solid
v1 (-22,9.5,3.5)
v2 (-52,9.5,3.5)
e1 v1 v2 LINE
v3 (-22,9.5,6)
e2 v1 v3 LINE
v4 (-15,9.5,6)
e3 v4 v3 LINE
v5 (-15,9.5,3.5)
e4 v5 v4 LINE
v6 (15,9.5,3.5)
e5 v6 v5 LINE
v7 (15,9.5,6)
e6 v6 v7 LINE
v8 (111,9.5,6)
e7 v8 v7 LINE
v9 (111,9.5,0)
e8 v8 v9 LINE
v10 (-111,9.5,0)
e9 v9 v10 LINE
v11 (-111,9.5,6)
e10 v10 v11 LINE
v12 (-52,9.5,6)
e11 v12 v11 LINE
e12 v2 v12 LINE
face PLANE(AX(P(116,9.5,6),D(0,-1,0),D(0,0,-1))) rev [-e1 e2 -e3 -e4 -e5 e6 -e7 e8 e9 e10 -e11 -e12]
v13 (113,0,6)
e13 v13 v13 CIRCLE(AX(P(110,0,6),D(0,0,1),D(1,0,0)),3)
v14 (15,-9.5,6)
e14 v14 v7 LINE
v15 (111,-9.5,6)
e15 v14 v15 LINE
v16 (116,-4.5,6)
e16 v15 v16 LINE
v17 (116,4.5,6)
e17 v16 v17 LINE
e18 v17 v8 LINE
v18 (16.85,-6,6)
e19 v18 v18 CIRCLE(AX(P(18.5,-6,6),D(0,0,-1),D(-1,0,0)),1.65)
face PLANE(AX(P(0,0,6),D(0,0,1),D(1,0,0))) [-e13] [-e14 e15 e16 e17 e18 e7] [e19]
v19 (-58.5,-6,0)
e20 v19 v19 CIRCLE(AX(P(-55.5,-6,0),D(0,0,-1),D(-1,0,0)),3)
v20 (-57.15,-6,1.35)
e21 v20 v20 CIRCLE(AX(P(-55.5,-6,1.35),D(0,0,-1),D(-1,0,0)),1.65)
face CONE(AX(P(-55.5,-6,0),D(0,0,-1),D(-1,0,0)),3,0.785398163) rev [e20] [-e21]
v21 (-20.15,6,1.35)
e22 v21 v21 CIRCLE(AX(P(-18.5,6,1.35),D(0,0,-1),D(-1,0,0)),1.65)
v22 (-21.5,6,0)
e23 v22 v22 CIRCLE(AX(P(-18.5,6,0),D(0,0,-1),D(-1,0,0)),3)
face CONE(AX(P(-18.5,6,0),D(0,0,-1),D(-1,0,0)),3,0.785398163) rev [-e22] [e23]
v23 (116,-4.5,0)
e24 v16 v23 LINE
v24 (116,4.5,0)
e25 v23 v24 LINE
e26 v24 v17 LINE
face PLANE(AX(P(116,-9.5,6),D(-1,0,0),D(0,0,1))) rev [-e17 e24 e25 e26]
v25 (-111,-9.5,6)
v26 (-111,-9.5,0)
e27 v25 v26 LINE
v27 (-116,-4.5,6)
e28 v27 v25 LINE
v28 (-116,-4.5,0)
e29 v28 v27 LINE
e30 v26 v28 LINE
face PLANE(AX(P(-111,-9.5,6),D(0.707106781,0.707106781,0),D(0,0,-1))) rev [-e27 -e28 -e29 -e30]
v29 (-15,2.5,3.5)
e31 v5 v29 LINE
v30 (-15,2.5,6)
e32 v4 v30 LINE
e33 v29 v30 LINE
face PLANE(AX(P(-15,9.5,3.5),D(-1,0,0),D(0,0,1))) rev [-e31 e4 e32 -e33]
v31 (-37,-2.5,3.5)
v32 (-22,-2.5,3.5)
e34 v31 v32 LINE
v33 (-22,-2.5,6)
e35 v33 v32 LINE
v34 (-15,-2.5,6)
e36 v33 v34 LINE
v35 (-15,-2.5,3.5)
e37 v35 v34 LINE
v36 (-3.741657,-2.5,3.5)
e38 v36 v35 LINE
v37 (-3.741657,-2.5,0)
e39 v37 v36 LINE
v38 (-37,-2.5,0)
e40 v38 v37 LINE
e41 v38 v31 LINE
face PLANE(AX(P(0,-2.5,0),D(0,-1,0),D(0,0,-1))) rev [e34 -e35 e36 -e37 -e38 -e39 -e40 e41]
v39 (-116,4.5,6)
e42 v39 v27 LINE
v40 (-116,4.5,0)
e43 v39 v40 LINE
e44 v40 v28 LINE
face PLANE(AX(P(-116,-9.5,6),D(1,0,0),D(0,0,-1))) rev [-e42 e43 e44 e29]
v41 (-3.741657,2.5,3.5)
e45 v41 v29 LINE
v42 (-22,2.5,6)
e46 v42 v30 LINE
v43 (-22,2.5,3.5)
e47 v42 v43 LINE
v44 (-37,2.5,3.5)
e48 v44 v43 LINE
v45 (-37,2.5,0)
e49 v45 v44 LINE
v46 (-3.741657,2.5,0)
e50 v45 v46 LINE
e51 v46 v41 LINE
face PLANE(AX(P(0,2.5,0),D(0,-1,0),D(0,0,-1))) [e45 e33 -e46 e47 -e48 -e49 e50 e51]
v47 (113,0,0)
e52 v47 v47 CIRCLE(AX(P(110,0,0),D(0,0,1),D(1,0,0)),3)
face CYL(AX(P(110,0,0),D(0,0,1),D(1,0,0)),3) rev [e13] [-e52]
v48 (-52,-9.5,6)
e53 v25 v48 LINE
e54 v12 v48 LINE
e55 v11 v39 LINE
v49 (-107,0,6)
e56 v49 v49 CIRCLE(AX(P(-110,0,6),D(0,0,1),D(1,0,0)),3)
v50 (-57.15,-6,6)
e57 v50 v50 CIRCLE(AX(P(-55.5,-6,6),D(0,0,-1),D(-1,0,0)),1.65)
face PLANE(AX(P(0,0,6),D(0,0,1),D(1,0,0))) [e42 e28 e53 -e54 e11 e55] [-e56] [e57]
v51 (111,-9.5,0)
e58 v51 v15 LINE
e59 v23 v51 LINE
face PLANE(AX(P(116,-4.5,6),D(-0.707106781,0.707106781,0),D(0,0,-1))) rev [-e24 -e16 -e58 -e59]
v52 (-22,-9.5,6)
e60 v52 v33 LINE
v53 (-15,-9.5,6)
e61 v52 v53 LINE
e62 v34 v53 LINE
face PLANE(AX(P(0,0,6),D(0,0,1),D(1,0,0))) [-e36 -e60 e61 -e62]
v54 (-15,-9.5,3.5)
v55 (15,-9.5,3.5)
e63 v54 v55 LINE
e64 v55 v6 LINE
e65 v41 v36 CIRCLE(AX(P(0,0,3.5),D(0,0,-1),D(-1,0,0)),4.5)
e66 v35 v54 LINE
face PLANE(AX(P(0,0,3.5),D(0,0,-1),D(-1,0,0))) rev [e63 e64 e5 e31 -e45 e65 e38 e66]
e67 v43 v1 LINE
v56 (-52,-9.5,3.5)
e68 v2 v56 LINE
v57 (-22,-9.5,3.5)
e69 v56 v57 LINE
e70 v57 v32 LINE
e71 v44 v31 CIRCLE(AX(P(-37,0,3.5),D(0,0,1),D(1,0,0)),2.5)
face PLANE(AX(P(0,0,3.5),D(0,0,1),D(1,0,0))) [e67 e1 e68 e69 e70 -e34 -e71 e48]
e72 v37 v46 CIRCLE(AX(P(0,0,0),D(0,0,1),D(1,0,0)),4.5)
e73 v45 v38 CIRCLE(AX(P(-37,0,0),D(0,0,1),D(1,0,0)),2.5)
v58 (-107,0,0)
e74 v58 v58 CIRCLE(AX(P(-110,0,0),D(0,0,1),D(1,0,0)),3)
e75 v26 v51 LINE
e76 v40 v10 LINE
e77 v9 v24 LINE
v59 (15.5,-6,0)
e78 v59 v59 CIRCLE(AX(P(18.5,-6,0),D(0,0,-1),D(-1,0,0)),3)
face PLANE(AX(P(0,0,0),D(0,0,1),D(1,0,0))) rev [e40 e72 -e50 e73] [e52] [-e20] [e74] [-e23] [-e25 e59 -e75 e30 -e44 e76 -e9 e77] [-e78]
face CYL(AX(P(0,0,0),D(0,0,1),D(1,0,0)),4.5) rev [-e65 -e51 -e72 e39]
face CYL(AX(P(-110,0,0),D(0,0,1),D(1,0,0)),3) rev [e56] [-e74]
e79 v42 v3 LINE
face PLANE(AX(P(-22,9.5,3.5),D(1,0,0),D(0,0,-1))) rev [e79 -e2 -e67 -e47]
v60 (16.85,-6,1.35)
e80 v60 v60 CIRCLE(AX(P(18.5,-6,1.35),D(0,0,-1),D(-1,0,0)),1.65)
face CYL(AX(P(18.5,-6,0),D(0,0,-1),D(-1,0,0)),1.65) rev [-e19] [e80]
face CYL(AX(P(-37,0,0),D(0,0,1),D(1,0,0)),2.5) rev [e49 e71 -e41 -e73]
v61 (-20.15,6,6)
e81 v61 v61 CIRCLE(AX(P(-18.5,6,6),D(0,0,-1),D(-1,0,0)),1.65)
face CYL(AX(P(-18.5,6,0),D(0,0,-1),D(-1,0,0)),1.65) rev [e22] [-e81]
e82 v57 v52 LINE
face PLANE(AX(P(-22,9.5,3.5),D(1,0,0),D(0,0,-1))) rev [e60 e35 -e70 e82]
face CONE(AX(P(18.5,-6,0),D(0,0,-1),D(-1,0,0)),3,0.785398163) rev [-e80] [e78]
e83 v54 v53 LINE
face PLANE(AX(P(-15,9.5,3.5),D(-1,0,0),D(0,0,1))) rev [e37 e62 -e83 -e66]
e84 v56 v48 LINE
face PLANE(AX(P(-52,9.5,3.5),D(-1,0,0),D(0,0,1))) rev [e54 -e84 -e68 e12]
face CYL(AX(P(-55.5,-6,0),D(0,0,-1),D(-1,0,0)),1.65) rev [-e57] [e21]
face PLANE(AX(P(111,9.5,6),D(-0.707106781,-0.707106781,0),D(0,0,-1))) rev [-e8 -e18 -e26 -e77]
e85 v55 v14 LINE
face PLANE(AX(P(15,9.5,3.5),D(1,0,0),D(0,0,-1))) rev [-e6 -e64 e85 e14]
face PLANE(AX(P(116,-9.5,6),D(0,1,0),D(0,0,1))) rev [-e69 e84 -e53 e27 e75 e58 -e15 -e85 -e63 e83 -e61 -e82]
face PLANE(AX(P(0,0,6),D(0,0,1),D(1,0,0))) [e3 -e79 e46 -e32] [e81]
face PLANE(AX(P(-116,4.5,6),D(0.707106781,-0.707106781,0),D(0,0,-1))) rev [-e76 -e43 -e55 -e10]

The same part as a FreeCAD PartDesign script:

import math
import FreeCAD as App
import Part
import Sketcher
from FreeCAD import Vector


def edges_at(feature, points):
    """Names of the edges that pass closest to the given points."""
    edges = feature.Shape.Edges
    near = lambda p: min(range(len(edges)), key=lambda i: edges[i].distToShape(Part.Vertex(*p))[0])
    return sorted({f"Edge{near(p) + 1}" for p in points})

doc = App.newDocument("Part")
params = doc.addObject("Spreadsheet::Sheet", "Params")
for row, (alias, value) in enumerate([
    ("sketch1_width", "232 mm"),
    ("sketch1_height", "19 mm"),
    ("pad1_length", "6 mm"),
    ("sketch2_width", "30 mm"),
    ("sketch2_height", "19 mm"),
    ("pocket1_length", "2.5 mm"),
    ("sketch3_diameter", "6 mm"),
    ("sketch4_radius", "4.5 mm"),
    ("sketch4_radius2", "2.5 mm"),
    ("chamfer_size", "5 mm"),
    ("sketch5_diameter", "3.3 mm"),
    ("hole_diameter", "3.3 mm"),
    ("hole_csink_diameter", "6 mm"),
], start=1):
    params.set(f"A{row}", alias)
    params.set(f"B{row}", "=" + value)
    params.setAlias(f"B{row}", alias)

body = doc.addObject("PartDesign::Body", "Body")

# Sketch on XY plane
sketch1 = doc.addObject("Sketcher::SketchObject", "Sketch")
body.addObject(sketch1)
sketch1.AttachmentSupport = (doc.XY_Plane, [""])
sketch1.MapMode = "FlatFace"
sketch1.addGeometry([
    Part.LineSegment(Vector(-116, 10, 0), Vector(-116, -10, 0)),
    Part.LineSegment(Vector(-116, -10, 0), Vector(116, -10, 0)),
    Part.LineSegment(Vector(116, -10, 0), Vector(116, 10, 0)),
    Part.LineSegment(Vector(116, 10, 0), Vector(-116, 10, 0)),
], False)
sketch1.addConstraint([
    Sketcher.Constraint("Coincident", 0, 2, 1, 1),
    Sketcher.Constraint("Coincident", 1, 2, 2, 1),
    Sketcher.Constraint("Coincident", 2, 2, 3, 1),
    Sketcher.Constraint("Coincident", 3, 2, 0, 1),
    Sketcher.Constraint("Vertical", 0),
    Sketcher.Constraint("Horizontal", 1),
    Sketcher.Constraint("Vertical", 2),
    Sketcher.Constraint("Horizontal", 3),
    Sketcher.Constraint("Symmetric", 0, 2, 2, 2, -1, 1),
    Sketcher.Constraint("DistanceX", 1, 1, 1, 2, 232.0),
    Sketcher.Constraint("DistanceY", 0, 2, 0, 1, 19.0),
])
sketch1.setExpression("Constraints[9]", "Params.sketch1_width")
sketch1.setExpression("Constraints[10]", "Params.sketch1_height")
pad1 = doc.addObject("PartDesign::Pad", "Pad")
body.addObject(pad1)
pad1.Profile = sketch1
pad1.setExpression("Length", "Params.pad1_length")

# Sketch on XY plane
sketch2 = doc.addObject("Sketcher::SketchObject", "Sketch001")
body.addObject(sketch2)
sketch2.AttachmentSupport = (doc.XY_Plane, [""])
sketch2.MapMode = "FlatFace"
sketch2.AttachmentOffset = App.Placement(Vector(0, 0, 6), App.Rotation())
sketch2.addGeometry([
    Part.LineSegment(Vector(-52, 10, 0), Vector(-52, -10, 0)),  # 0
    Part.LineSegment(Vector(-52, -10, 0), Vector(-22, -10, 0)),  # 1
    Part.LineSegment(Vector(-22, -10, 0), Vector(-22, 10, 0)),  # 2
    Part.LineSegment(Vector(-22, 10, 0), Vector(-52, 10, 0)),  # 3
    Part.LineSegment(Vector(-15, 10, 0), Vector(-15, -10, 0)),  # 4
    Part.LineSegment(Vector(-15, -10, 0), Vector(15, -10, 0)),  # 5
    Part.LineSegment(Vector(15, -10, 0), Vector(15, 10, 0)),  # 6
    Part.LineSegment(Vector(15, 10, 0), Vector(-15, 10, 0)),  # 7
], False)
sketch2.addConstraint([
    Sketcher.Constraint("Coincident", 0, 2, 1, 1),
    Sketcher.Constraint("Coincident", 1, 2, 2, 1),
    Sketcher.Constraint("Coincident", 2, 2, 3, 1),
    Sketcher.Constraint("Coincident", 3, 2, 0, 1),
    Sketcher.Constraint("Coincident", 4, 2, 5, 1),
    Sketcher.Constraint("Coincident", 5, 2, 6, 1),
    Sketcher.Constraint("Coincident", 6, 2, 7, 1),
    Sketcher.Constraint("Coincident", 7, 2, 4, 1),
    Sketcher.Constraint("Vertical", 0),
    Sketcher.Constraint("Horizontal", 1),
    Sketcher.Constraint("Vertical", 2),
    Sketcher.Constraint("Horizontal", 3),
    Sketcher.Constraint("Vertical", 4),
    Sketcher.Constraint("Horizontal", 5),
    Sketcher.Constraint("Vertical", 6),
    Sketcher.Constraint("Horizontal", 7),
    Sketcher.Constraint("Symmetric", 4, 2, 6, 2, -1, 1),
    Sketcher.Constraint("Horizontal", 1, 2, 4, 2),
    Sketcher.Constraint("Horizontal", 3, 2, 6, 2),
    Sketcher.Constraint("Equal", 3, 5),
    Sketcher.Constraint("DistanceX", 1, 1, 1, 2, 30.0),
    Sketcher.Constraint("DistanceY", 0, 2, 0, 1, 19.0),
    Sketcher.Constraint("DistanceX", 0, 2, -1, 1, 52.0),
])
sketch2.setExpression("Constraints[20]", "Params.sketch2_width")
sketch2.setExpression("Constraints[21]", "Params.sketch2_height")
pocket1 = doc.addObject("PartDesign::Pocket", "Pocket")
body.addObject(pocket1)
pocket1.Profile = sketch2
pocket1.setExpression("Length", "Params.pocket1_length")

# Sketch on XY plane
sketch3 = doc.addObject("Sketcher::SketchObject", "Sketch002")
body.addObject(sketch3)
sketch3.AttachmentSupport = (doc.XY_Plane, [""])
sketch3.MapMode = "FlatFace"
sketch3.AttachmentOffset = App.Placement(Vector(0, 0, 6), App.Rotation())
sketch3.addGeometry([
    Part.Circle(Vector(110, 0, 0), Vector(0, 0, 1), 3),
    Part.Circle(Vector(-110, 0, 0), Vector(0, 0, 1), 3),
], False)
sketch3.addConstraint([
    Sketcher.Constraint("Equal", 0, 1),
    Sketcher.Constraint("Symmetric", 0, 3, 1, 3, -1, 1),
    Sketcher.Constraint("PointOnObject", 0, 3, -1),
    Sketcher.Constraint("Diameter", 0, 6.0),
    Sketcher.Constraint("DistanceX", -1, 1, 0, 3, 110.0),
])
sketch3.setExpression("Constraints[3]", "Params.sketch3_diameter")
pocket2 = doc.addObject("PartDesign::Pocket", "Pocket001")
body.addObject(pocket2)
pocket2.Profile = sketch3
pocket2.Type = "ThroughAll"

# Sketch on XY plane
sketch4 = doc.addObject("Sketcher::SketchObject", "Sketch003")
body.addObject(sketch4)
sketch4.AttachmentSupport = (doc.XY_Plane, [""])
sketch4.MapMode = "FlatFace"
sketch4.AttachmentOffset = App.Placement(Vector(0, 0, 6), App.Rotation())
sketch4.addGeometry([
    Part.ArcOfCircle(Part.Circle(Vector(0, 0, 0), Vector(0, 0, 1), 4.5), math.radians(-146), math.radians(146)),
    Part.LineSegment(Vector(-3.7, 2.5, 0), Vector(-37, 2.5, 0)),
    Part.ArcOfCircle(Part.Circle(Vector(-37, 0, 0), Vector(0, 0, 1), 2.5), math.radians(90), math.radians(270)),
    Part.LineSegment(Vector(-37, -2.5, 0), Vector(-3.7, -2.5, 0)),
], False)
sketch4.addConstraint([
    Sketcher.Constraint("Coincident", 0, 2, 1, 1),
    Sketcher.Constraint("Tangent", 1, 2, 2, 1),
    Sketcher.Constraint("Tangent", 2, 2, 3, 1),
    Sketcher.Constraint("Coincident", 3, 2, 0, 1),
    Sketcher.Constraint("Horizontal", 1),
    Sketcher.Constraint("Horizontal", 3),
    Sketcher.Constraint("Coincident", 0, 3, -1, 1),
    Sketcher.Constraint("PointOnObject", 2, 3, -1),
    Sketcher.Constraint("Radius", 0, 4.5),
    Sketcher.Constraint("Radius", 2, 2.5),
    Sketcher.Constraint("DistanceX", 2, 3, -1, 1, 37.0),
])
sketch4.setExpression("Constraints[8]", "Params.sketch4_radius")
sketch4.setExpression("Constraints[9]", "Params.sketch4_radius2")
pocket3 = doc.addObject("PartDesign::Pocket", "Pocket002")
body.addObject(pocket3)
pocket3.Profile = sketch4
pocket3.Type = "ThroughAll"
doc.recompute()

chamfer = doc.addObject("PartDesign::Chamfer", "Chamfer")
body.addObject(chamfer)
chamfer.Base = (pocket3, edges_at(pocket3, [
    (-116, 9.5, 3),
    (116, 9.5, 3),
    (116, -9.5, 3),
    (-116, -9.5, 3),
]))
chamfer.setExpression("Size", "Params.chamfer_size")

# Sketch on XY plane
sketch5 = doc.addObject("Sketcher::SketchObject", "Sketch004")
body.addObject(sketch5)
sketch5.AttachmentSupport = (doc.XY_Plane, [""])
sketch5.MapMode = "FlatFace"
sketch5.addGeometry([
    Part.Circle(Vector(-18.5, 6, 0), Vector(0, 0, 1), 1.6),
    Part.Circle(Vector(-55.5, -6, 0), Vector(0, 0, 1), 1.6),
    Part.Circle(Vector(18.5, -6, 0), Vector(0, 0, 1), 1.6),
], False)
sketch5.addConstraint([
    Sketcher.Constraint("Equal", 0, 1),
    Sketcher.Constraint("Equal", 1, 2),
    Sketcher.Constraint("Symmetric", 0, 3, 2, 3, -1, 1),
    Sketcher.Constraint("Horizontal", 1, 3, 2, 3),
    Sketcher.Constraint("Diameter", 0, 3.3),
    Sketcher.Constraint("DistanceY", -1, 1, 0, 3, 6.0),
    Sketcher.Constraint("DistanceX", 1, 3, 0, 3, 37.0),
    Sketcher.Constraint("DistanceX", 0, 3, 2, 3, 37.0),
])
sketch5.setExpression("Constraints[4]", "Params.sketch5_diameter")
doc.recompute()
hole = doc.addObject("PartDesign::Hole", "Hole")
body.addObject(hole)
hole.Profile = sketch5
hole.ThreadType = "None"
hole.setExpression("Diameter", "Params.hole_diameter")
hole.DepthType = "ThroughAll"
hole.HoleCutType = "Countersink"
hole.setExpression("HoleCutDiameter", "Params.hole_csink_diameter")
hole.HoleCutCountersinkAngle = 90
hole.Reversed = True

doc.recompute()
